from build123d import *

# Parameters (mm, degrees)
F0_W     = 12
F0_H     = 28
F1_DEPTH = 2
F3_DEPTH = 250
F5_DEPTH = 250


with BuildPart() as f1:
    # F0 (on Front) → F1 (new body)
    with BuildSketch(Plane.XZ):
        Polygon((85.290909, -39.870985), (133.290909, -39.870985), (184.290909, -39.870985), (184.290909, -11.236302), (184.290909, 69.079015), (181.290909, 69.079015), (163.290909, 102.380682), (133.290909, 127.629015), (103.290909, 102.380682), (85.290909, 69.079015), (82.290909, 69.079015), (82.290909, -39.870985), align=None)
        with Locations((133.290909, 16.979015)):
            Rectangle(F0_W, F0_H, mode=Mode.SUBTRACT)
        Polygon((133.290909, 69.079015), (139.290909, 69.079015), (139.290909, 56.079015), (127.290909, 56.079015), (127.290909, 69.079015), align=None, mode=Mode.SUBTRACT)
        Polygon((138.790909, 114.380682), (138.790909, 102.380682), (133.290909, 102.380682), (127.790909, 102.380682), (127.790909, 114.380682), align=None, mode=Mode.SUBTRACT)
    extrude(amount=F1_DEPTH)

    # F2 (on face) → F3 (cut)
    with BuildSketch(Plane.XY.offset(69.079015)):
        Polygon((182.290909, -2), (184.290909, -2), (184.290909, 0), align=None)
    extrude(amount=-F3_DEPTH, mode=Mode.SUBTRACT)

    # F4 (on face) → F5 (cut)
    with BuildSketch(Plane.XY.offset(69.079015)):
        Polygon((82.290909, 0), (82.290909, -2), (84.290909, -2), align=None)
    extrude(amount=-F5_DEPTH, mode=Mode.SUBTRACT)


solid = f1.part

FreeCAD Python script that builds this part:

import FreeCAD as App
import Part
import Sketcher
Q = App.Units.Quantity


def add_polygon(sketch, points):
    """Adds a closed chain of lines whose ends are joined by coincident constraints."""
    first, n = sketch.GeometryCount, len(points)
    for a, b in zip(points, points[1:] + points[:1]):
        sketch.addGeometry(Part.LineSegment(App.Vector(*a, 0), App.Vector(*b, 0)), False)
    for i in range(n):
        sketch.addConstraint(Sketcher.Constraint("Coincident", first + i, 2, first + (i + 1) % n, 1))

doc = App.newDocument("Part")
body = doc.addObject("PartDesign::Body", "Body")

sketch1 = body.newObject("Sketcher::SketchObject", "Sketch")
sketch1.AttachmentSupport = (doc.getObject("XZ_Plane"), [""])
sketch1.MapMode = "FlatFace"
add_polygon(sketch1, [(184.3, -39.9), (184.3, 69.1), (181.3, 69.1), (163.3, 102.4), (133.3, 127.6), (103.3, 102.4), (85.3, 69.1), (82.3, 69.1), (82.3, -39.9)])
add_polygon(sketch1, [(139.3, 3), (127.3, 3), (127.3, 31), (139.3, 31)])
add_polygon(sketch1, [(127.3, 69.1), (139.3, 69.1), (139.3, 56.1), (127.3, 56.1)])
add_polygon(sketch1, [(127.8, 114.4), (138.8, 114.4), (138.8, 102.4), (127.8, 102.4)])
sketch1.addConstraint([
    Sketcher.Constraint("Vertical", 0),
    Sketcher.Constraint("Horizontal", 1),
    Sketcher.Constraint("Horizontal", 6),
    Sketcher.Constraint("Vertical", 7),
    Sketcher.Constraint("Horizontal", 8),
    Sketcher.Constraint("Horizontal", 9),
    Sketcher.Constraint("Vertical", 10),
    Sketcher.Constraint("Horizontal", 11),
    Sketcher.Constraint("Vertical", 12),
    Sketcher.Constraint("Horizontal", 13),
    Sketcher.Constraint("Vertical", 14),
    Sketcher.Constraint("Horizontal", 15),
    Sketcher.Constraint("Vertical", 16),
    Sketcher.Constraint("Horizontal", 17),
    Sketcher.Constraint("Vertical", 18),
    Sketcher.Constraint("Horizontal", 19),
    Sketcher.Constraint("Vertical", 20),
    Sketcher.Constraint("Horizontal", 2, 2, 4, 2),
    Sketcher.Constraint("Horizontal", 1, 2, 5, 2),
    Sketcher.Constraint("Horizontal", 6, 2, 13, 2),
    Sketcher.Constraint("Horizontal", 4, 2, 18, 2),
    Sketcher.Constraint("Vertical", 12, 2, 13, 2),
    Sketcher.Constraint("Vertical", 10, 2, 15, 2),
    Sketcher.Constraint("Equal", 1, 6),
    Sketcher.Constraint("Equal", 15, 18),
    Sketcher.Constraint("Equal", 3, 4),
    Sketcher.Constraint("Equal", 2, 5),
    Sketcher.Constraint("DistanceX", 1, 2, 1, 1, Q("3 mm")),
    Sketcher.Constraint("DistanceX", 8, 1, 8, 2, Q("102 mm")),
    Sketcher.Constraint("DistanceX", 9, 2, 9, 1, Q("12 mm")),
    Sketcher.Constraint("DistanceX", 17, 1, 17, 2, Q("11 mm")),
    Sketcher.Constraint("DistanceY", 10, 1, 10, 2, Q("28 mm")),
    Sketcher.Constraint("DistanceY", 14, 2, 14, 1, Q("13 mm")),
    Sketcher.Constraint("DistanceX", 2, 2, 1, 2, Q("18 mm")),
    Sketcher.Constraint("DistanceX", 7, 2, 9, 2, Q("45 mm")),
    Sketcher.Constraint("DistanceY", 0, 1, 0, 2, Q("108.95 mm")),
    Sketcher.Constraint("DistanceY", 9, 2, 5, 2, Q("66.1 mm")),
    Sketcher.Constraint("DistanceX", 3, 2, 17, 2, Q("5.5 mm")),
    Sketcher.Constraint("DistanceY", 1, 2, 3, 2, Q("58.55 mm")),
    Sketcher.Constraint("Distance", 2, Q("37.855 mm")),
    Sketcher.Constraint("DistanceX", -1, 1, 0, 2, Q("184.290909 mm")),
    Sketcher.Constraint("DistanceY", -1, 1, 2, 2, Q("102.380682 mm")),
])
pad1 = body.newObject("PartDesign::Pad", "Pad")
pad1.Profile = sketch1
pad1.Length = 2

sketch2 = body.newObject("Sketcher::SketchObject", "Sketch001")
sketch2.AttachmentSupport = (doc.getObject("XY_Plane"), [""])
sketch2.MapMode = "FlatFace"
sketch2.AttachmentOffset = App.Placement(App.Vector(0, 0, 69.079015), App.Rotation())
add_polygon(sketch2, [(182.3, -2), (184.3, -2), (184.3, 0)])
sketch2.addConstraint([
    Sketcher.Constraint("Horizontal", 0),
    Sketcher.Constraint("Vertical", 1),
    Sketcher.Constraint("PointOnObject", 1, 2, -1),
    Sketcher.Constraint("Equal", 0, 1),
    Sketcher.Constraint("DistanceX", 0, 1, 0, 2, Q("2 mm")),
    Sketcher.Constraint("DistanceX", -1, 1, 0, 2, Q("184.290909 mm")),
])
pocket1 = body.newObject("PartDesign::Pocket", "Pocket")
pocket1.Profile = sketch2
pocket1.Length = 250

sketch3 = body.newObject("Sketcher::SketchObject", "Sketch002")
sketch3.AttachmentSupport = (doc.getObject("XY_Plane"), [""])
sketch3.MapMode = "FlatFace"
sketch3.AttachmentOffset = App.Placement(App.Vector(0, 0, 69.079015), App.Rotation())
add_polygon(sketch3, [(82.3, 0), (82.3, -2), (84.3, -2)])
sketch3.addConstraint([
    Sketcher.Constraint("Vertical", 0),
    Sketcher.Constraint("Horizontal", 1),
    Sketcher.Constraint("PointOnObject", 2, 2, -1),
    Sketcher.Constraint("Equal", 1, 0),
    Sketcher.Constraint("DistanceX", 1, 1, 1, 2, Q("2 mm")),
    Sketcher.Constraint("DistanceX", -1, 1, 0, 2, Q("82.290909 mm")),
])
pocket2 = body.newObject("PartDesign::Pocket", "Pocket001")
pocket2.Profile = sketch3
pocket2.Length = 250

doc.recompute()
